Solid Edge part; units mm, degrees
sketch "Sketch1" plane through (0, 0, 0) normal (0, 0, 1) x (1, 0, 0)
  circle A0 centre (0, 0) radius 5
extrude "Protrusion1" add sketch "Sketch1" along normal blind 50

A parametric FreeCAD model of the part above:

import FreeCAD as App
import Part
import Sketcher

V = App.Vector
Q = App.Units.Quantity

doc = App.newDocument("Part")
body = doc.addObject("PartDesign::Body", "Body")

# Sketch on XY plane
sketch1 = body.newObject("Sketcher::SketchObject", "Sketch")
sketch1.AttachmentSupport = (doc.getObject("XY_Plane"), [""])
sketch1.MapMode = "FlatFace"
sketch1.addGeometry(Part.Circle(V(0, 0, 0), V(0, 0, 1), 5), False)
sketch1.addConstraint([
    Sketcher.Constraint("Coincident", 0, 3, -1, 1),
    Sketcher.Constraint("Diameter", 0, Q("10 mm")),
])
pad1 = body.newObject("PartDesign::Pad", "Pad")
pad1.Profile = sketch1
pad1.Length = 50

doc.recompute()
